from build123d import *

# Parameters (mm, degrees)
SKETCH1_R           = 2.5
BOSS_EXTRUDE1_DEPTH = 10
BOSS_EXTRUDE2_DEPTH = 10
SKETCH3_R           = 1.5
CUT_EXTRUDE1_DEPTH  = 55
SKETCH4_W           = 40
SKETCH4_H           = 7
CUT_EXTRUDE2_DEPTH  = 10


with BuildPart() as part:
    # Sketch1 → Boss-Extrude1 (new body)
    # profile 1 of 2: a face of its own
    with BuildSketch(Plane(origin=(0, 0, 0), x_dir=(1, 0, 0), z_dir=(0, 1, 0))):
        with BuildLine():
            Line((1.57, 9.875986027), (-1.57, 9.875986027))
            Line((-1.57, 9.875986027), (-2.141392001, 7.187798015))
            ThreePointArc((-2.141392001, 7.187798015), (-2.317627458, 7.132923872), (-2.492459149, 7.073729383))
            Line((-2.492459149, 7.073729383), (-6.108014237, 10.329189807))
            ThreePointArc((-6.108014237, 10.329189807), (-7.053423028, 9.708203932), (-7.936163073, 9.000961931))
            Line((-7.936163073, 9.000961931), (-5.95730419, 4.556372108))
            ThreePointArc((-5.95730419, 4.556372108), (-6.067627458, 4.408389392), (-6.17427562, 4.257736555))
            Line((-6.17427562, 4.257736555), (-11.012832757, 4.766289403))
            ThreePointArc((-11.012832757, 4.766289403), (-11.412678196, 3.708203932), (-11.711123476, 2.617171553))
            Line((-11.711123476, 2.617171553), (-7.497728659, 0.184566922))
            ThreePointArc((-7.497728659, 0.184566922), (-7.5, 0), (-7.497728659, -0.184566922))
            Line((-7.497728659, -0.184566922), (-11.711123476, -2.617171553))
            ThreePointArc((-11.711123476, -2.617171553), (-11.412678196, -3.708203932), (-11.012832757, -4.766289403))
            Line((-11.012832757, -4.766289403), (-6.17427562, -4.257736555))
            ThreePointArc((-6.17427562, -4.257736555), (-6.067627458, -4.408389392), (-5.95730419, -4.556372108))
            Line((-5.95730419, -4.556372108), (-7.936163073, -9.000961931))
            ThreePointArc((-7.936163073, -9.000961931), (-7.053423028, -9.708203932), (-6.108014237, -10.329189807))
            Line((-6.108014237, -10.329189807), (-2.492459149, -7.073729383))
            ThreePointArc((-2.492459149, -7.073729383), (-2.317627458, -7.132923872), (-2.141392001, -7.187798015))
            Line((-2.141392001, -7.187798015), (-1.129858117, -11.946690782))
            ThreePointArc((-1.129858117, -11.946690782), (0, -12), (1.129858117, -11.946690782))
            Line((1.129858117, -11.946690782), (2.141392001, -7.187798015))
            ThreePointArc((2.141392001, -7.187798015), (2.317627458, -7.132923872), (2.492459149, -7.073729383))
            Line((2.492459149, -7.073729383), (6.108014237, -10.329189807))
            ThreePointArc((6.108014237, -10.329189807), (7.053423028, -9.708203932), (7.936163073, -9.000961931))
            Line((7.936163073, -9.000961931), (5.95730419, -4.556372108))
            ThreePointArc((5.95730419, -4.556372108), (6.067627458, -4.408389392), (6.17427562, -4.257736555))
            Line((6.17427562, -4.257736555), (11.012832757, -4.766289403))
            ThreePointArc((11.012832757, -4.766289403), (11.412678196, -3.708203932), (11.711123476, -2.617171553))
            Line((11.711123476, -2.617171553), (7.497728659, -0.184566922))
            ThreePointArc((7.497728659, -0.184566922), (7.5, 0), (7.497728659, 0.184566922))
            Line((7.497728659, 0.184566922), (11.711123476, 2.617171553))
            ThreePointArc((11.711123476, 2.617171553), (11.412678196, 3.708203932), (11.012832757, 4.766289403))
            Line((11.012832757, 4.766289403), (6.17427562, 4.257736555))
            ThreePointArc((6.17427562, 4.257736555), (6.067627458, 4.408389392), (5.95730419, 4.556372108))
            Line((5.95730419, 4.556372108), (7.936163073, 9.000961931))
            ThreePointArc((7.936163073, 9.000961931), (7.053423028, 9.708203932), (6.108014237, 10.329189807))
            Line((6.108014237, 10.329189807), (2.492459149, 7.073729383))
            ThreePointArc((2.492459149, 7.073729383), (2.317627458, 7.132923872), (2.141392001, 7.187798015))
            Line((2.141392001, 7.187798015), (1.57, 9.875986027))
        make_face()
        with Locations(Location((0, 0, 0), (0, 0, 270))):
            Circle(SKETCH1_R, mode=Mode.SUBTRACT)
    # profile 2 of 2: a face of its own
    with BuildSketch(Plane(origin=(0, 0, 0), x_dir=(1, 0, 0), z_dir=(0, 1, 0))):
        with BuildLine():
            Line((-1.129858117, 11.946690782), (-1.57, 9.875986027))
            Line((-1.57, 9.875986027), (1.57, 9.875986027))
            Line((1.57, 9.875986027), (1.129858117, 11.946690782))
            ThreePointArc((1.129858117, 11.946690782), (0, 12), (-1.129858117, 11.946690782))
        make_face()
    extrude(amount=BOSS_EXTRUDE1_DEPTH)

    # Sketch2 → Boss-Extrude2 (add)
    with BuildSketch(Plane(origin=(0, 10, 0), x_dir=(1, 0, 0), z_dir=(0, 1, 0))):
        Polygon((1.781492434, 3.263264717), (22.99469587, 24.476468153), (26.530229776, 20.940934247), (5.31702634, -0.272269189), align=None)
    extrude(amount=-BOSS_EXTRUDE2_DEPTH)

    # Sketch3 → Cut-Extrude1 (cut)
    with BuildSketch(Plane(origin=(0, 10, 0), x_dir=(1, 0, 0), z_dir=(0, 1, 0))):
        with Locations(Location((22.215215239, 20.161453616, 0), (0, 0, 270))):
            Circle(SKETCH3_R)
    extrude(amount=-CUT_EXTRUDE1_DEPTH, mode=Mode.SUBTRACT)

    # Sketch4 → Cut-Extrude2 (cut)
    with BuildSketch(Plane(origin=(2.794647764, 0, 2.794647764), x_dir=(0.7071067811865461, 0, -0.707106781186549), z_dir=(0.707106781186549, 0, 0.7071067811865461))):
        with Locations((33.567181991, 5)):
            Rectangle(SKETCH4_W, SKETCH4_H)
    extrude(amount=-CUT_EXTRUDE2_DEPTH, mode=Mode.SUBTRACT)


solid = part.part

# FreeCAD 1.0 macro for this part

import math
import FreeCAD as App
import Part
import Sketcher
from FreeCAD import Vector
Q = App.Units.Quantity

doc = App.newDocument("Part")
body = doc.addObject("PartDesign::Body", "Body")

sketch1 = doc.addObject("Sketcher::SketchObject", "Sketch")
body.addObject(sketch1)
sketch1.AttachmentSupport = (doc.XZ_Plane, [""])
sketch1.MapMode = "FlatFace"
sketch1.addGeometry([
    Part.LineSegment(Vector(2.14, -7.19, 0), Vector(1.57, -9.88, 0)),
    Part.LineSegment(Vector(1.57, -9.88, 0), Vector(1.13, -11.95, 0)),
    Part.ArcOfCircle(Part.Circle(Vector(0, 0, 0), Vector(0, 0, 1), 12), math.radians(-95.4), math.radians(-84.6)),
    Part.LineSegment(Vector(-1.13, -11.95, 0), Vector(-1.57, -9.88, 0)),
    Part.LineSegment(Vector(-1.57, -9.88, 0), Vector(-2.14, -7.19, 0)),
    Part.ArcOfCircle(Part.Circle(Vector(0, 0, 0), Vector(0, 0, 1), 7.5), math.radians(-109.41), math.radians(-106.59)),
    Part.LineSegment(Vector(-2.49, -7.07, 0), Vector(-6.11, -10.33, 0)),
    Part.ArcOfCircle(Part.Circle(Vector(0, 0, 0), Vector(0, 0, 1), 12), math.radians(-131.4), math.radians(-120.6)),
    Part.LineSegment(Vector(-7.94, -9, 0), Vector(-5.96, -4.56, 0)),
    Part.ArcOfCircle(Part.Circle(Vector(0, 0, 0), Vector(0, 0, 1), 7.5), math.radians(-145.41), math.radians(-142.59)),
    Part.LineSegment(Vector(-6.17, -4.26, 0), Vector(-11.01, -4.77, 0)),
    Part.ArcOfCircle(Part.Circle(Vector(0, 0, 0), Vector(0, 0, 1), 12), math.radians(-167.4), math.radians(-156.6)),
    Part.LineSegment(Vector(-11.71, -2.62, 0), Vector(-7.5, -0.18, 0)),
    Part.ArcOfCircle(Part.Circle(Vector(0, 0, 0), Vector(0, 0, 1), 7.5), math.radians(178.59), math.radians(181.41)),
    Part.LineSegment(Vector(-7.5, 0.18, 0), Vector(-11.71, 2.62, 0)),
    Part.ArcOfCircle(Part.Circle(Vector(0, 0, 0), Vector(0, 0, 1), 12), math.radians(156.6), math.radians(167.4)),
    Part.LineSegment(Vector(-11.01, 4.77, 0), Vector(-6.17, 4.26, 0)),
    Part.ArcOfCircle(Part.Circle(Vector(0, 0, 0), Vector(0, 0, 1), 7.5), math.radians(142.59), math.radians(145.41)),
    Part.LineSegment(Vector(-5.96, 4.56, 0), Vector(-7.94, 9, 0)),
    Part.ArcOfCircle(Part.Circle(Vector(0, 0, 0), Vector(0, 0, 1), 12), math.radians(120.6), math.radians(131.4)),
    Part.LineSegment(Vector(-6.11, 10.33, 0), Vector(-2.49, 7.07, 0)),
    Part.ArcOfCircle(Part.Circle(Vector(0, 0, 0), Vector(0, 0, 1), 7.5), math.radians(106.59), math.radians(109.41)),
    Part.LineSegment(Vector(-2.14, 7.19, 0), Vector(-1.13, 11.95, 0)),
    Part.ArcOfCircle(Part.Circle(Vector(0, 0, 0), Vector(0, 0, 1), 12), math.radians(84.6), math.radians(95.4)),
    Part.LineSegment(Vector(1.13, 11.95, 0), Vector(2.14, 7.19, 0)),
    Part.ArcOfCircle(Part.Circle(Vector(0, 0, 0), Vector(0, 0, 1), 7.5), math.radians(70.59), math.radians(73.41)),
    Part.LineSegment(Vector(2.49, 7.07, 0), Vector(6.11, 10.33, 0)),
    Part.ArcOfCircle(Part.Circle(Vector(0, 0, 0), Vector(0, 0, 1), 12), math.radians(48.6), math.radians(59.4)),
    Part.LineSegment(Vector(7.94, 9, 0), Vector(5.96, 4.56, 0)),
    Part.ArcOfCircle(Part.Circle(Vector(0, 0, 0), Vector(0, 0, 1), 7.5), math.radians(34.59), math.radians(37.41)),
    Part.LineSegment(Vector(6.17, 4.26, 0), Vector(11.01, 4.77, 0)),
    Part.ArcOfCircle(Part.Circle(Vector(0, 0, 0), Vector(0, 0, 1), 12), math.radians(12.6), math.radians(23.4)),
    Part.LineSegment(Vector(11.71, 2.62, 0), Vector(7.5, 0.18, 0)),
    Part.ArcOfCircle(Part.Circle(Vector(0, 0, 0), Vector(0, 0, 1), 7.5), math.radians(-1.41), math.radians(1.41)),
    Part.LineSegment(Vector(7.5, -0.18, 0), Vector(11.71, -2.62, 0)),
    Part.ArcOfCircle(Part.Circle(Vector(0, 0, 0), Vector(0, 0, 1), 12), math.radians(-23.4), math.radians(-12.6)),
    Part.LineSegment(Vector(11.01, -4.77, 0), Vector(6.17, -4.26, 0)),
    Part.ArcOfCircle(Part.Circle(Vector(0, 0, 0), Vector(0, 0, 1), 7.5), math.radians(-37.41), math.radians(-34.59)),
    Part.LineSegment(Vector(5.96, -4.56, 0), Vector(7.94, -9, 0)),
    Part.ArcOfCircle(Part.Circle(Vector(0, 0, 0), Vector(0, 0, 1), 12), math.radians(-59.4), math.radians(-48.6)),
    Part.LineSegment(Vector(6.11, -10.33, 0), Vector(2.49, -7.07, 0)),
    Part.ArcOfCircle(Part.Circle(Vector(0, 0, 0), Vector(0, 0, 1), 7.5), math.radians(-73.41), math.radians(-70.59)),
    Part.Circle(Vector(0, 0, 0), Vector(0, 0, 1), 2.5),
], False)
sketch1.addConstraint([
    Sketcher.Constraint("Coincident", 0, 2, 1, 1),
    Sketcher.Constraint("Coincident", 1, 2, 2, 2),
    Sketcher.Constraint("Coincident", 2, 1, 3, 1),
    Sketcher.Constraint("Coincident", 3, 2, 4, 1),
    Sketcher.Constraint("Coincident", 4, 2, 5, 2),
    Sketcher.Constraint("Coincident", 5, 1, 6, 1),
    Sketcher.Constraint("Coincident", 6, 2, 7, 2),
    Sketcher.Constraint("Coincident", 7, 1, 8, 1),
    Sketcher.Constraint("Coincident", 8, 2, 9, 2),
    Sketcher.Constraint("Coincident", 9, 1, 10, 1),
    Sketcher.Constraint("Coincident", 10, 2, 11, 2),
    Sketcher.Constraint("Coincident", 11, 1, 12, 1),
    Sketcher.Constraint("Coincident", 12, 2, 13, 2),
    Sketcher.Constraint("Coincident", 13, 1, 14, 1),
    Sketcher.Constraint("Coincident", 14, 2, 15, 2),
    Sketcher.Constraint("Coincident", 15, 1, 16, 1),
    Sketcher.Constraint("Coincident", 16, 2, 17, 2),
    Sketcher.Constraint("Coincident", 17, 1, 18, 1),
    Sketcher.Constraint("Coincident", 18, 2, 19, 2),
    Sketcher.Constraint("Coincident", 19, 1, 20, 1),
    Sketcher.Constraint("Coincident", 20, 2, 21, 2),
    Sketcher.Constraint("Coincident", 21, 1, 22, 1),
    Sketcher.Constraint("Coincident", 22, 2, 23, 2),
    Sketcher.Constraint("Coincident", 23, 1, 24, 1),
    Sketcher.Constraint("Coincident", 24, 2, 25, 2),
    Sketcher.Constraint("Coincident", 25, 1, 26, 1),
    Sketcher.Constraint("Coincident", 26, 2, 27, 2),
    Sketcher.Constraint("Coincident", 27, 1, 28, 1),
    Sketcher.Constraint("Coincident", 28, 2, 29, 2),
    Sketcher.Constraint("Coincident", 29, 1, 30, 1),
    Sketcher.Constraint("Coincident", 30, 2, 31, 2),
    Sketcher.Constraint("Coincident", 31, 1, 32, 1),
    Sketcher.Constraint("Coincident", 32, 2, 33, 2),
    Sketcher.Constraint("Coincident", 33, 1, 34, 1),
    Sketcher.Constraint("Coincident", 34, 2, 35, 2),
    Sketcher.Constraint("Coincident", 35, 1, 36, 1),
    Sketcher.Constraint("Coincident", 36, 2, 37, 2),
    Sketcher.Constraint("Coincident", 37, 1, 38, 1),
    Sketcher.Constraint("Coincident", 38, 2, 39, 2),
    Sketcher.Constraint("Coincident", 39, 1, 40, 1),
    Sketcher.Constraint("Coincident", 40, 2, 41, 2),
    Sketcher.Constraint("Coincident", 41, 1, 0, 1),
    Sketcher.Constraint("Coincident", 2, 3, -1, 1),
    Sketcher.Constraint("Coincident", 5, 3, -1, 1),
    Sketcher.Constraint("Coincident", 7, 3, -1, 1),
    Sketcher.Constraint("Coincident", 9, 3, -1, 1),
    Sketcher.Constraint("Coincident", 11, 3, -1, 1),
    Sketcher.Constraint("Coincident", 13, 3, -1, 1),
    Sketcher.Constraint("Coincident", 15, 3, -1, 1),
    Sketcher.Constraint("Coincident", 17, 3, -1, 1),
    Sketcher.Constraint("Coincident", 19, 3, -1, 1),
    Sketcher.Constraint("Coincident", 21, 3, -1, 1),
    Sketcher.Constraint("Coincident", 23, 3, -1, 1),
    Sketcher.Constraint("Coincident", 25, 3, -1, 1),
    Sketcher.Constraint("Coincident", 27, 3, -1, 1),
    Sketcher.Constraint("Coincident", 29, 3, -1, 1),
    Sketcher.Constraint("Coincident", 31, 3, -1, 1),
    Sketcher.Constraint("Coincident", 33, 3, -1, 1),
    Sketcher.Constraint("Coincident", 35, 3, -1, 1),
    Sketcher.Constraint("Coincident", 37, 3, -1, 1),
    Sketcher.Constraint("Coincident", 39, 3, -1, 1),
    Sketcher.Constraint("Coincident", 41, 3, -1, 1),
    Sketcher.Constraint("Coincident", 42, 3, -1, 1),
    Sketcher.Constraint("Equal", 2, 7),
    Sketcher.Constraint("Equal", 5, 9),
    Sketcher.Constraint("Equal", 7, 11),
    Sketcher.Constraint("Equal", 9, 13),
    Sketcher.Constraint("Equal", 11, 15),
    Sketcher.Constraint("Equal", 13, 17),
    Sketcher.Constraint("Equal", 15, 19),
    Sketcher.Constraint("Equal", 17, 21),
    Sketcher.Constraint("Equal", 19, 23),
    Sketcher.Constraint("Equal", 21, 25),
    Sketcher.Constraint("Equal", 23, 27),
    Sketcher.Constraint("Equal", 25, 29),
    Sketcher.Constraint("Equal", 27, 31),
    Sketcher.Constraint("Equal", 29, 33),
    Sketcher.Constraint("Equal", 31, 35),
    Sketcher.Constraint("Equal", 33, 37),
    Sketcher.Constraint("Equal", 35, 39),
    Sketcher.Constraint("Equal", 37, 41),
    Sketcher.Constraint("Symmetric", 0, 2, 3, 2, -2),
    Sketcher.Constraint("Parallel", 0, 1),
    Sketcher.Constraint("Parallel", 3, 4),
    Sketcher.Constraint("Parallel", 1, 22),
    Sketcher.Constraint("Parallel", 4, 24),
    Sketcher.Constraint("Parallel", 6, 26),
    Sketcher.Constraint("Parallel", 8, 28),
    Sketcher.Constraint("Parallel", 10, 30),
    Sketcher.Constraint("Parallel", 12, 32),
    Sketcher.Constraint("Parallel", 14, 34),
    Sketcher.Constraint("Parallel", 16, 36),
    Sketcher.Constraint("Parallel", 18, 38),
    Sketcher.Constraint("Parallel", 20, 40),
    Sketcher.Constraint("Horizontal", 1, 2, 2, 1),
    Sketcher.Constraint("Horizontal", 22, 2, 23, 1),
    Sketcher.Constraint("Horizontal", 20, 2, 25, 1),
    Sketcher.Constraint("Horizontal", 19, 1, 26, 2),
    Sketcher.Constraint("Horizontal", 18, 2, 27, 1),
    Sketcher.Constraint("Horizontal", 17, 1, 28, 2),
    Sketcher.Constraint("Horizontal", 16, 2, 29, 1),
    Sketcher.Constraint("Horizontal", 15, 1, 30, 2),
    Sketcher.Constraint("Horizontal", 14, 2, 31, 1),
    Sketcher.Constraint("Horizontal", 13, 1, 32, 2),
    Sketcher.Constraint("Horizontal", 12, 2, 33, 1),
    Sketcher.Constraint("Horizontal", 10, 2, 35, 1),
    Sketcher.Constraint("Horizontal", 8, 2, 37, 1),
    Sketcher.Constraint("Horizontal", 6, 2, 39, 1),
    Sketcher.Constraint("Vertical", 12, 2, 13, 1),
    Sketcher.Constraint("Vertical", 10, 2, 15, 1),
    Sketcher.Constraint("Vertical", 8, 2, 17, 1),
    Sketcher.Constraint("Vertical", 6, 2, 19, 1),
    Sketcher.Constraint("Vertical", 4, 2, 21, 1),
    Sketcher.Constraint("Equal", 6, 8),
    Sketcher.Constraint("Equal", 8, 10),
    Sketcher.Constraint("Equal", 10, 12),
    Sketcher.Constraint("Equal", 20, 22),
    Sketcher.Constraint("Diameter", 42, 5.0),
    Sketcher.Constraint("Radius", 2, 12.0),
    Sketcher.Constraint("Radius", 5, 7.5),
    Sketcher.Constraint("Angle", 0, Q("-102 deg")),
    Sketcher.Constraint("Angle", 6, Q("-138 deg")),
    Sketcher.Constraint("Angle", 8, Q("66 deg")),
    Sketcher.Constraint("Angle", 10, Q("-174 deg")),
    Sketcher.Constraint("Angle", 12, Q("30 deg")),
    Sketcher.Constraint("DistanceX", -1, 1, 0, 2, 1.57),
    Sketcher.Constraint("DistanceY", 4, 2, -1, 1, 7.187798),
])
pad1 = doc.addObject("PartDesign::Pad", "Pad")
body.addObject(pad1)
pad1.Profile = sketch1
pad1.Length = 10
pad1.Reversed = True

sketch2 = doc.addObject("Sketcher::SketchObject", "Sketch001")
body.addObject(sketch2)
sketch2.AttachmentSupport = (doc.XZ_Plane, [""])
sketch2.MapMode = "FlatFace"
sketch2.AttachmentOffset = App.Placement(Vector(0, 0, -10), App.Rotation())
sketch2.addGeometry([
    Part.LineSegment(Vector(23, -24, 0), Vector(2, -3, 0)),
    Part.LineSegment(Vector(2, -3, 0), Vector(5, 0, 0)),
    Part.LineSegment(Vector(5, 0, 0), Vector(27, -21, 0)),
    Part.LineSegment(Vector(27, -21, 0), Vector(23, -24, 0)),
], False)
sketch2.addConstraint([
    Sketcher.Constraint("Coincident", 0, 2, 1, 1),
    Sketcher.Constraint("Coincident", 1, 2, 2, 1),
    Sketcher.Constraint("Coincident", 2, 2, 3, 1),
    Sketcher.Constraint("Coincident", 3, 2, 0, 1),
    Sketcher.Constraint("Perpendicular", 0, 1),
    Sketcher.Constraint("Perpendicular", 1, 2),
    Sketcher.Constraint("Perpendicular", 2, 3),
    Sketcher.Constraint("Angle", 0, Q("135 deg")),
    Sketcher.Constraint("Distance", 0, 30.0),
    Sketcher.Constraint("Distance", 1, 5.0),
    Sketcher.Constraint("DistanceY", -1, 1, 1, 2, 0.272269),
    Sketcher.Constraint("DistanceX", -1, 1, 2, 2, 26.53023),
])
pad2 = doc.addObject("PartDesign::Pad", "Pad001")
body.addObject(pad2)
pad2.Profile = sketch2
pad2.Length = 10

sketch3 = doc.addObject("Sketcher::SketchObject", "Sketch002")
body.addObject(sketch3)
sketch3.AttachmentSupport = (doc.XZ_Plane, [""])
sketch3.MapMode = "FlatFace"
sketch3.AttachmentOffset = App.Placement(Vector(0, 0, -10), App.Rotation())
sketch3.addGeometry(Part.Circle(Vector(22.2, -20.2, 0), Vector(0, 0, 1), 1.5), False)
sketch3.addConstraint([
    Sketcher.Constraint("Diameter", 0, 3.0),
    Sketcher.Constraint("DistanceX", -1, 1, 0, 3, 22.215215),
    Sketcher.Constraint("DistanceY", 0, 3, -1, 1, 20.161454),
])
pocket1 = doc.addObject("PartDesign::Pocket", "Pocket")
body.addObject(pocket1)
pocket1.Profile = sketch3
pocket1.Length = 55
pocket1.Reversed = True

sketch4 = doc.addObject("Sketcher::SketchObject", "Sketch003")
body.addObject(sketch4)
sketch4.Placement = App.Placement(Vector(2.794648, 0, 2.794648), App.Rotation(Vector(0.707106781, 0, -0.707106781), Vector(0, 0.999999999, 0), Vector(0.707106781, 0, 0.707106781), "ZXY"))
sketch4.addGeometry([
    Part.LineSegment(Vector(14, 8, 0), Vector(14, 1, 0)),
    Part.LineSegment(Vector(14, 1, 0), Vector(54, 1, 0)),
    Part.LineSegment(Vector(54, 1, 0), Vector(54, 8, 0)),
    Part.LineSegment(Vector(54, 8, 0), Vector(14, 8, 0)),
], False)
sketch4.addConstraint([
    Sketcher.Constraint("Coincident", 0, 2, 1, 1),
    Sketcher.Constraint("Coincident", 1, 2, 2, 1),
    Sketcher.Constraint("Coincident", 2, 2, 3, 1),
    Sketcher.Constraint("Coincident", 3, 2, 0, 1),
    Sketcher.Constraint("Vertical", 0),
    Sketcher.Constraint("Horizontal", 1),
    Sketcher.Constraint("Vertical", 2),
    Sketcher.Constraint("Horizontal", 3),
    Sketcher.Constraint("DistanceX", 1, 1, 1, 2, 40.0),
    Sketcher.Constraint("DistanceY", 0, 2, 0, 1, 7.0),
    Sketcher.Constraint("DistanceY", -1, 1, 0, 2, 1.5),
    Sketcher.Constraint("DistanceX", -1, 1, 0, 2, 13.567182),
])
pocket2 = doc.addObject("PartDesign::Pocket", "Pocket001")
body.addObject(pocket2)
pocket2.Profile = sketch4
pocket2.Length = 10

doc.recompute()
